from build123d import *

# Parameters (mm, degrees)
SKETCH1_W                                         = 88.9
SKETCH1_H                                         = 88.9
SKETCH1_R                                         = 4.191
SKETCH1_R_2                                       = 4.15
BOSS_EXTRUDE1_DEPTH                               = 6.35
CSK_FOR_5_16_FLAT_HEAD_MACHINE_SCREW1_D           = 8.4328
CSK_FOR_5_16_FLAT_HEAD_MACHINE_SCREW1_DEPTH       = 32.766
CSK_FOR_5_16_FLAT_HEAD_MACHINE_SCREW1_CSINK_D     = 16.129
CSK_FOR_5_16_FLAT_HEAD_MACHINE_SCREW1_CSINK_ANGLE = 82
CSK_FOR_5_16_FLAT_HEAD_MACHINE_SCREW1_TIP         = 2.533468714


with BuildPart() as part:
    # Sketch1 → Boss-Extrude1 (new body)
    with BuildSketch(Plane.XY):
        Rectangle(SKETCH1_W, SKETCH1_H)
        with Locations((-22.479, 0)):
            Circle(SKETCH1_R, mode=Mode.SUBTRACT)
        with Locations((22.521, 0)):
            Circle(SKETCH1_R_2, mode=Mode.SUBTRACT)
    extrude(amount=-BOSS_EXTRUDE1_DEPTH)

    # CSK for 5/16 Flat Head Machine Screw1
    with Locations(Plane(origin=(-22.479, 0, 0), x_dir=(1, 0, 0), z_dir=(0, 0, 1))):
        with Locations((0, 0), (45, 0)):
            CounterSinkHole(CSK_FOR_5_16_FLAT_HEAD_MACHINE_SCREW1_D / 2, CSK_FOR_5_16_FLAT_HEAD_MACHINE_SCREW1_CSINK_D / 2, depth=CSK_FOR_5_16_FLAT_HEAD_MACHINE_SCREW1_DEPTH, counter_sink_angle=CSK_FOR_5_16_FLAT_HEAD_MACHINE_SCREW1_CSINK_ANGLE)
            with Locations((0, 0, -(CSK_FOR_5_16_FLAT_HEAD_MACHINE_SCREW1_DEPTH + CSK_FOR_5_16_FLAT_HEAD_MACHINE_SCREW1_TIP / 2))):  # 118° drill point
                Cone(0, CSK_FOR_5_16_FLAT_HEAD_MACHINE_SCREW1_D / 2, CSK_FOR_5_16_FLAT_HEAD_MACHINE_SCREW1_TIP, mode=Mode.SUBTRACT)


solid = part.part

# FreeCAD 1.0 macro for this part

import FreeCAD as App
import Part
import Sketcher

V = App.Vector
Q = App.Units.Quantity


def add_polygon(sketch, points):
    """Adds a closed chain of lines whose ends are joined by coincident constraints."""
    first, n = sketch.GeometryCount, len(points)
    for a, b in zip(points, points[1:] + points[:1]):
        sketch.addGeometry(Part.LineSegment(App.Vector(*a, 0), App.Vector(*b, 0)), False)
    for i in range(n):
        sketch.addConstraint(Sketcher.Constraint("Coincident", first + i, 2, first + (i + 1) % n, 1))

doc = App.newDocument("Part")
body = doc.addObject("PartDesign::Body", "Body")

sketch1 = body.newObject("Sketcher::SketchObject", "Sketch")
sketch1.AttachmentSupport = (doc.getObject("XY_Plane"), [""])
sketch1.MapMode = "FlatFace"
add_polygon(sketch1, [(-44.5, 44.5), (-44.5, -44.5), (44.5, -44.5), (44.5, 44.5)])
sketch1.addGeometry(Part.Circle(V(-22.5, 0, 0), V(0, 0, 1), 4.2), False)
sketch1.addGeometry(Part.Circle(V(22.5, 0, 0), V(0, 0, 1), 4.2), False)
sketch1.addConstraint(Sketcher.Constraint("Vertical", 0))
sketch1.addConstraint(Sketcher.Constraint("Horizontal", 1))
sketch1.addConstraint(Sketcher.Constraint("Vertical", 2))
sketch1.addConstraint(Sketcher.Constraint("Horizontal", 3))
sketch1.addConstraint(Sketcher.Constraint("Symmetric", 0, 2, 2, 2, -1, 1))
sketch1.addConstraint(Sketcher.Constraint("PointOnObject", 4, 3, -1))
sketch1.addConstraint(Sketcher.Constraint("PointOnObject", 5, 3, -1))
sketch1.addConstraint(Sketcher.Constraint("Equal", 3, 0))
sketch1.addConstraint(Sketcher.Constraint("Diameter", 4, Q("0.33 in")))
sketch1.addConstraint(Sketcher.Constraint("DistanceX", 1, 1, 1, 2, Q("3.5 in")))
sketch1.addConstraint(Sketcher.Constraint("Diameter", 5, Q("8.3 mm")))
sketch1.addConstraint(Sketcher.Constraint("DistanceX", 4, 3, -1, 1, Q("0.885 in")))
sketch1.addConstraint(Sketcher.Constraint("DistanceX", -1, 1, 5, 3, Q("22.521 mm")))
pad1 = body.newObject("PartDesign::Pad", "Pad")
pad1.Profile = sketch1
pad1.Length = Q("0.25 in")
pad1.Reversed = True

sketch2 = body.newObject("Sketcher::SketchObject", "Sketch001")
sketch2.AttachmentSupport = (doc.getObject("XY_Plane"), [""])
sketch2.MapMode = "FlatFace"
sketch2.addGeometry(Part.Circle(V(-22.5, 0, 0), V(0, 0, 1), 4.2), False)
sketch2.addGeometry(Part.Circle(V(22.5, 0, 0), V(0, 0, 1), 4.2), False)
sketch2.addConstraint(Sketcher.Constraint("Equal", 0, 1))
sketch2.addConstraint(Sketcher.Constraint("PointOnObject", 0, 3, -1))
sketch2.addConstraint(Sketcher.Constraint("PointOnObject", 1, 3, -1))
sketch2.addConstraint(Sketcher.Constraint("Diameter", 0, Q("0.332 in")))
sketch2.addConstraint(Sketcher.Constraint("DistanceX", 0, 3, -1, 1, Q("0.885 in")))
sketch2.addConstraint(Sketcher.Constraint("DistanceX", -1, 1, 1, 3, Q("22.521 mm")))
doc.recompute()
hole = body.newObject("PartDesign::Hole", "Hole")
hole.Profile = sketch2
hole.ThreadType = "None"
hole.Diameter = Q("0.332 in")
hole.DepthType = "Dimension"
hole.Depth = Q("1.29 in")
hole.DrillPoint = "Angled"
hole.DrillPointAngle = 118
hole.HoleCutType = "Countersink"
hole.HoleCutDiameter = Q("0.635 in")
hole.HoleCutCountersinkAngle = 82

doc.recompute()
